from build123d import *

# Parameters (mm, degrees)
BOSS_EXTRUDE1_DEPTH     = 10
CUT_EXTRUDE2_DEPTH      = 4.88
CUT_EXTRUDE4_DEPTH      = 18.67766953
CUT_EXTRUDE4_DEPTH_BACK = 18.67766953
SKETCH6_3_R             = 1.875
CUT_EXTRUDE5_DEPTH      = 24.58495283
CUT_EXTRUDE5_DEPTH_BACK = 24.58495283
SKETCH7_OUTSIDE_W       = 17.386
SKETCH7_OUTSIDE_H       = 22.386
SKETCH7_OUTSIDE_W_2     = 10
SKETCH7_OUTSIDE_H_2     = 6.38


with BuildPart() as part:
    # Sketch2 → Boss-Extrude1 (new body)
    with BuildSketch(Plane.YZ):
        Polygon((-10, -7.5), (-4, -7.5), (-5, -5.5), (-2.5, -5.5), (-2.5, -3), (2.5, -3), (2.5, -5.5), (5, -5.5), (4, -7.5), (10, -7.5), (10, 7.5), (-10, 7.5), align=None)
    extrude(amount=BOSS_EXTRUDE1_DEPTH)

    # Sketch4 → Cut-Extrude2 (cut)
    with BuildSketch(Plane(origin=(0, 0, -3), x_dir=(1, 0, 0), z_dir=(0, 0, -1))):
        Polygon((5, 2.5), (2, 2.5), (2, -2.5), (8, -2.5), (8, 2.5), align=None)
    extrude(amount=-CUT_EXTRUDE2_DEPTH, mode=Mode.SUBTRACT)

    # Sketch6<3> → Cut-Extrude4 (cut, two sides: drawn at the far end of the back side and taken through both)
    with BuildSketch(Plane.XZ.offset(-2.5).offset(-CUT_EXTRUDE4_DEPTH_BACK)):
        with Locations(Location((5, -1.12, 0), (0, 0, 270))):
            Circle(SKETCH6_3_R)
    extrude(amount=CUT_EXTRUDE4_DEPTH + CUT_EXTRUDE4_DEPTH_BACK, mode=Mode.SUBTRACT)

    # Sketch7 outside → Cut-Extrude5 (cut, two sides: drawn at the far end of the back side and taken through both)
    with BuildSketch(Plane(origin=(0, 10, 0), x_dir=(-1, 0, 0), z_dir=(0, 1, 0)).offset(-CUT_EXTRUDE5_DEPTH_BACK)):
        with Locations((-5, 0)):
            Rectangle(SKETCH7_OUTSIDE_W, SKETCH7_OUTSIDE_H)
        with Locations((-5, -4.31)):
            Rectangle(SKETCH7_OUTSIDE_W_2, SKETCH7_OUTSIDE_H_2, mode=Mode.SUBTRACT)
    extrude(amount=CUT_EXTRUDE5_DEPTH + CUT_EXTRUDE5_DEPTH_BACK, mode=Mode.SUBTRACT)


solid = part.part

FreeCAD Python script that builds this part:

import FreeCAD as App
import Part
import Sketcher
from FreeCAD import Vector
Q = App.Units.Quantity


def add_polygon(sketch, points):
    """Adds a closed chain of lines whose ends are joined by coincident constraints."""
    first, n = sketch.GeometryCount, len(points)
    for a, b in zip(points, points[1:] + points[:1]):
        sketch.addGeometry(Part.LineSegment(App.Vector(*a, 0), App.Vector(*b, 0)), False)
    for i in range(n):
        sketch.addConstraint(Sketcher.Constraint("Coincident", first + i, 2, first + (i + 1) % n, 1))

doc = App.newDocument("Part")
body = doc.addObject("PartDesign::Body", "Body")

sketch1 = doc.addObject("Sketcher::SketchObject", "Sketch")
body.addObject(sketch1)
sketch1.AttachmentSupport = (doc.YZ_Plane, [""])
sketch1.MapMode = "FlatFace"
add_polygon(sketch1, [(-10, -7.5), (-4, -7.5), (-5, -5.5), (-2.5, -5.5), (-2.5, -3), (2.5, -3), (2.5, -5.5), (5, -5.5), (4, -7.5), (10, -7.5), (10, 7.5), (-10, 7.5)])
sketch1.addConstraint([
    Sketcher.Constraint("Horizontal", 0),
    Sketcher.Constraint("Horizontal", 2),
    Sketcher.Constraint("Vertical", 3),
    Sketcher.Constraint("Horizontal", 4),
    Sketcher.Constraint("Vertical", 5),
    Sketcher.Constraint("Horizontal", 6),
    Sketcher.Constraint("Horizontal", 8),
    Sketcher.Constraint("Vertical", 9),
    Sketcher.Constraint("Horizontal", 10),
    Sketcher.Constraint("Vertical", 11),
    Sketcher.Constraint("Symmetric", 8, 2, 10, 2, -1, 1),
    Sketcher.Constraint("Symmetric", 2, 2, 5, 2, -2),
    Sketcher.Constraint("Symmetric", 0, 2, 7, 2, -2),
    Sketcher.Constraint("Equal", 2, 6),
    Sketcher.Constraint("Equal", 6, 3),
    Sketcher.Constraint("DistanceX", 0, 1, 0, 2, Q("6 mm")),
    Sketcher.Constraint("DistanceX", 4, 1, 4, 2, Q("5 mm")),
    Sketcher.Constraint("DistanceX", 10, 2, 10, 1, Q("20 mm")),
    Sketcher.Constraint("DistanceY", 9, 1, 9, 2, Q("15 mm")),
    Sketcher.Constraint("DistanceX", 2, 1, 2, 2, Q("2.5 mm")),
    Sketcher.Constraint("DistanceY", 3, 2, -1, 1, Q("3 mm")),
])
pad1 = doc.addObject("PartDesign::Pad", "Pad")
body.addObject(pad1)
pad1.Profile = sketch1
pad1.Length = 10

sketch2 = doc.addObject("Sketcher::SketchObject", "Sketch001")
body.addObject(sketch2)
sketch2.AttachmentSupport = (doc.XY_Plane, [""])
sketch2.MapMode = "FlatFace"
sketch2.AttachmentOffset = App.Placement(Vector(0, 0, -3), App.Rotation())
add_polygon(sketch2, [(2, -2), (2, 2), (8, 2), (8, -2)])
sketch2.addConstraint([
    Sketcher.Constraint("Vertical", 0),
    Sketcher.Constraint("Horizontal", 1),
    Sketcher.Constraint("Vertical", 2),
    Sketcher.Constraint("Horizontal", 3),
    Sketcher.Constraint("DistanceX", 1, 1, 1, 2, Q("6 mm")),
    Sketcher.Constraint("DistanceY", 0, 1, 0, 2, Q("5 mm")),
    Sketcher.Constraint("DistanceX", -1, 1, 0, 2, Q("2 mm")),
    Sketcher.Constraint("DistanceY", -1, 1, 0, 2, Q("2.5 mm")),
])
pocket1 = doc.addObject("PartDesign::Pocket", "Pocket")
body.addObject(pocket1)
pocket1.Profile = sketch2
pocket1.Length = 4.88
pocket1.Reversed = True

sketch3 = doc.addObject("Sketcher::SketchObject", "Sketch002")
body.addObject(sketch3)
sketch3.AttachmentSupport = (doc.XZ_Plane, [""])
sketch3.MapMode = "FlatFace"
sketch3.AttachmentOffset = App.Placement(Vector(0, 0, -2.5), App.Rotation())
sketch3.addGeometry(Part.Circle(Vector(5, -1.1, 0), Vector(0, 0, 1), 1.9), False)
sketch3.addConstraint([
    Sketcher.Constraint("Diameter", 0, Q("3.75 mm")),
    Sketcher.Constraint("DistanceX", -1, 1, 0, 3, Q("5 mm")),
    Sketcher.Constraint("DistanceY", 0, 3, -1, 1, Q("1.12 mm")),
])
pocket2 = doc.addObject("PartDesign::Pocket", "Pocket001")
body.addObject(pocket2)
pocket2.Profile = sketch3
pocket2.Type = "ThroughAll"
pocket2.Midplane = True

sketch4 = doc.addObject("Sketcher::SketchObject", "Sketch003")
body.addObject(sketch4)
sketch4.AttachmentSupport = (doc.XZ_Plane, [""])
sketch4.MapMode = "FlatFace"
sketch4.AttachmentOffset = App.Placement(Vector(0, 0, -10), App.Rotation())
add_polygon(sketch4, [(14, 11), (14, -11), (-4, -11), (-4, 11)])
add_polygon(sketch4, [(0, -8), (10, -8), (10, -1), (0, -1)])
sketch4.addConstraint([
    Sketcher.Constraint("Vertical", 0),
    Sketcher.Constraint("Horizontal", 1),
    Sketcher.Constraint("Vertical", 2),
    Sketcher.Constraint("Horizontal", 3),
    Sketcher.Constraint("Horizontal", 4),
    Sketcher.Constraint("Vertical", 5),
    Sketcher.Constraint("Horizontal", 6),
    Sketcher.Constraint("Vertical", 7),
    Sketcher.Constraint("PointOnObject", 6, 2, -2),
    Sketcher.Constraint("DistanceX", 4, 1, 4, 2, Q("10 mm")),
    Sketcher.Constraint("DistanceY", 5, 1, 5, 2, Q("6.38 mm")),
    Sketcher.Constraint("DistanceY", 4, 2, -1, 1, Q("7.5 mm")),
    Sketcher.Constraint("DistanceX", 1, 2, 1, 1, Q("17.386 mm")),
    Sketcher.Constraint("DistanceY", 0, 2, 0, 1, Q("22.386 mm")),
    Sketcher.Constraint("DistanceX", -1, 1, 0, 2, Q("13.693 mm")),
    Sketcher.Constraint("DistanceY", 0, 2, -1, 1, Q("11.193 mm")),
])
pocket3 = doc.addObject("PartDesign::Pocket", "Pocket002")
body.addObject(pocket3)
pocket3.Profile = sketch4
pocket3.Type = "ThroughAll"
pocket3.Midplane = True

doc.recompute()
